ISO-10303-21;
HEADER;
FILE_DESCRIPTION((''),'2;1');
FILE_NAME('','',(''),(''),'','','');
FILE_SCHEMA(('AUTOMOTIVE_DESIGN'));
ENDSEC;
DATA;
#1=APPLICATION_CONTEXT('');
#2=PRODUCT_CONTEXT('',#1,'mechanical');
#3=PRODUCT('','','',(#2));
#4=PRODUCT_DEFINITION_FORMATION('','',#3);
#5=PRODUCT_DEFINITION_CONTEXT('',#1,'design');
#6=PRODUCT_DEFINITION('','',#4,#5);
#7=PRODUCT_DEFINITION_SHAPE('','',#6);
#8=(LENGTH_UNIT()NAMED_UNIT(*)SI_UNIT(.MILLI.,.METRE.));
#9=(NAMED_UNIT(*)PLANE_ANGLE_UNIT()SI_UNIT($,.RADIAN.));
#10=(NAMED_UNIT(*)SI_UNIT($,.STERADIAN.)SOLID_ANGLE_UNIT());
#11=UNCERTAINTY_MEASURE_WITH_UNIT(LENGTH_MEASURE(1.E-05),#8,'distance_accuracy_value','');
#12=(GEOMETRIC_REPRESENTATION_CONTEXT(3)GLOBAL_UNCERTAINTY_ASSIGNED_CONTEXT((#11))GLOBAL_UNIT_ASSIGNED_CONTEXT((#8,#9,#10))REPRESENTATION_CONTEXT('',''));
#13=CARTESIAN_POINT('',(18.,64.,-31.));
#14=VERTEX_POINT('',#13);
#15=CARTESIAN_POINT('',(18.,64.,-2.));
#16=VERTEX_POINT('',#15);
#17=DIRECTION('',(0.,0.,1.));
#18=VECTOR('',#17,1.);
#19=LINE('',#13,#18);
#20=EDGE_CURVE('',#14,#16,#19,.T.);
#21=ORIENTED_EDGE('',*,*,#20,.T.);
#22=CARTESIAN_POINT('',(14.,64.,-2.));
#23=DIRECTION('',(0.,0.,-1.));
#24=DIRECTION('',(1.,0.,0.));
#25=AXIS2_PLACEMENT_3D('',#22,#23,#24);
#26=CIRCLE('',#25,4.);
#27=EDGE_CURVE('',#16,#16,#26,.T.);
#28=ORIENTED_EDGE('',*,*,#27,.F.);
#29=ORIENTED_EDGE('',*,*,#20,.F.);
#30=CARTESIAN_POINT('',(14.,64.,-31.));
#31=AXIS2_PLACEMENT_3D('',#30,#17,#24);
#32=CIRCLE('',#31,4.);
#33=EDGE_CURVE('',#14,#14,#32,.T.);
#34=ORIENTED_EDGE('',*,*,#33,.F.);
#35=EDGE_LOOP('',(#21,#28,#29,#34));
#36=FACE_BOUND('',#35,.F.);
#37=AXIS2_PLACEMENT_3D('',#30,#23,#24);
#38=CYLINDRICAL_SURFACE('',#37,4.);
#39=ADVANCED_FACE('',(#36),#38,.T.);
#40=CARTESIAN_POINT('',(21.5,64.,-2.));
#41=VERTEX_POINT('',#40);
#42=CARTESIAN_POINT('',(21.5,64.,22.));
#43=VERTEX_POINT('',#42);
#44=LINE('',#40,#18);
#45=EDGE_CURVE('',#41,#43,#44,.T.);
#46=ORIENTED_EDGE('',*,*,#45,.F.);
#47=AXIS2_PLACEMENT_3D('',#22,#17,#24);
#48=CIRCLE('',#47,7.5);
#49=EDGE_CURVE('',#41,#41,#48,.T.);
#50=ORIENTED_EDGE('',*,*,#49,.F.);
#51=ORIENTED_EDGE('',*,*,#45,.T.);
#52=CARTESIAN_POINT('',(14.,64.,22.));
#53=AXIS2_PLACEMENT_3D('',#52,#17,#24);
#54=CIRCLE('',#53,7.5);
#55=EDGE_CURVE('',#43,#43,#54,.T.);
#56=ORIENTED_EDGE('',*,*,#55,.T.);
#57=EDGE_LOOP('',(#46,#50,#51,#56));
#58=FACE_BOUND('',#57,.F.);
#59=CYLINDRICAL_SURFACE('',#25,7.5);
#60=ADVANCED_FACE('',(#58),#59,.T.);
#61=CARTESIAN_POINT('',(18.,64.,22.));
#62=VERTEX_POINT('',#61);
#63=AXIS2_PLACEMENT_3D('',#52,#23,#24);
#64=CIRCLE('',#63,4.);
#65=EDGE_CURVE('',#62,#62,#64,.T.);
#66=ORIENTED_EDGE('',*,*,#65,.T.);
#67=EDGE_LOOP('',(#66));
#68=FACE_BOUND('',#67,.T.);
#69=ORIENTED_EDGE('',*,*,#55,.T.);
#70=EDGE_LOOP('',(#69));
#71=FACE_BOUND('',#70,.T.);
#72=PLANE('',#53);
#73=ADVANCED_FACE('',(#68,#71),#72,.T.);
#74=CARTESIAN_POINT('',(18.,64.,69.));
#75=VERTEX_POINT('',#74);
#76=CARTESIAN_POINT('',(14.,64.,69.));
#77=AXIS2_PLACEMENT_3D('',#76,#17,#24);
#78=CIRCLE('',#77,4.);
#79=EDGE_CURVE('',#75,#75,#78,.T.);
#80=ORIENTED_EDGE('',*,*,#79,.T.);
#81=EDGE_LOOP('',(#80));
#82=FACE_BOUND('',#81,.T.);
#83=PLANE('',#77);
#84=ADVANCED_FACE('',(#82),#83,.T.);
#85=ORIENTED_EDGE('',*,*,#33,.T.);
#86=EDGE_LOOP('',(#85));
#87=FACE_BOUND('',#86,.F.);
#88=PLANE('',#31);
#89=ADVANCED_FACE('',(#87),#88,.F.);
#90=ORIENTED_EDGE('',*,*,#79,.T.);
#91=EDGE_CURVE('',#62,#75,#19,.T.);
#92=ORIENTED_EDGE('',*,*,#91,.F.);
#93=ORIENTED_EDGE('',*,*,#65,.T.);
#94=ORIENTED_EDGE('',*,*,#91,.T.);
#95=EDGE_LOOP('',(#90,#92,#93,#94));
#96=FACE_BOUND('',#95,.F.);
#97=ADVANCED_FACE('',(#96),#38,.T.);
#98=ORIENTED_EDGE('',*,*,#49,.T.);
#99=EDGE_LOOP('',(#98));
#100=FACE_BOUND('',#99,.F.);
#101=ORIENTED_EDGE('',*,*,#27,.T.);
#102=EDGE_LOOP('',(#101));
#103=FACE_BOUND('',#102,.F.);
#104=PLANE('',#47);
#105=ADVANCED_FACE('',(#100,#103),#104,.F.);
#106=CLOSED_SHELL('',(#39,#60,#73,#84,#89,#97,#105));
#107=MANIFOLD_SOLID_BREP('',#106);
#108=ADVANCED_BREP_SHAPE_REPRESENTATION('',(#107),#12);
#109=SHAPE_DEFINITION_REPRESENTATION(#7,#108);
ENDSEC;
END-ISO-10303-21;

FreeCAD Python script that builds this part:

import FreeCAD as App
import Part
import Sketcher
Q = App.Units.Quantity

doc = App.newDocument("Part")
params = doc.addObject("Spreadsheet::Sheet", "Params")
for row, (alias, value) in enumerate([
    ("sketch1_diameter", "8 mm"),
    ("pad1_length", "100 mm"),
    ("sketch2_diameter", "15 mm"),
    ("pad2_length", "24 mm"),
], start=1):
    params.set(f"A{row}", alias)
    params.set(f"B{row}", "=" + value)
    params.setAlias(f"B{row}", alias)

body = doc.addObject("PartDesign::Body", "Body")

sketch1 = body.newObject("Sketcher::SketchObject", "Sketch")
sketch1.AttachmentSupport = (doc.getObject("XY_Plane"), [""])
sketch1.MapMode = "FlatFace"
sketch1.AttachmentOffset = App.Placement(App.Vector(0, 0, -123), App.Rotation())
sketch1.addGeometry(Part.Circle(App.Vector(42, 0, 0), App.Vector(0, 0, 1), 4), False)
sketch1.addConstraint([
    Sketcher.Constraint("PointOnObject", 0, 3, -1),
    Sketcher.Constraint("Diameter", 0, Q("8 mm")),
    Sketcher.Constraint("DistanceX", -1, 1, 0, 3, Q("42 mm")),
])
sketch1.setExpression("Constraints[1]", "Params.sketch1_diameter")
pad1 = body.newObject("PartDesign::Pad", "Pad")
pad1.Profile = sketch1
pad1.setExpression("Length", "Params.pad1_length")
body2 = doc.addObject("PartDesign::Body", "Body001")

sketch2 = body2.newObject("Sketcher::SketchObject", "Sketch001")
sketch2.AttachmentSupport = (doc.getObject("XY_Plane001"), [""])
sketch2.MapMode = "FlatFace"
sketch2.AttachmentOffset = App.Placement(App.Vector(0, 0, -94), App.Rotation())
sketch2.addGeometry(Part.Circle(App.Vector(42, 0, 0), App.Vector(0, 0, 1), 8), False)
sketch2.addConstraint([
    Sketcher.Constraint("PointOnObject", 0, 3, -1),
    Sketcher.Constraint("Diameter", 0, Q("15 mm")),
    Sketcher.Constraint("DistanceX", -1, 1, 0, 3, Q("42 mm")),
])
sketch2.setExpression("Constraints[1]", "Params.sketch2_diameter")
pad2 = body2.newObject("PartDesign::Pad", "Pad001")
pad2.Profile = sketch2
pad2.setExpression("Length", "Params.pad2_length")
doc.recompute()

boolean = body2.newObject("PartDesign::Boolean", "Boolean")
boolean.Type = "Fuse"
boolean.addObjects([body])
body3 = doc.addObject("PartDesign::Body", "Body002")
doc.recompute()

body2.Placement = App.Placement(App.Vector(-28, 64, 92), App.Rotation(App.Vector(0, 0, 1), 0))
boolean2 = body3.newObject("PartDesign::Boolean", "Boolean001")
boolean2.Type = "Fuse"
boolean2.addObjects([body2])

doc.recompute()
